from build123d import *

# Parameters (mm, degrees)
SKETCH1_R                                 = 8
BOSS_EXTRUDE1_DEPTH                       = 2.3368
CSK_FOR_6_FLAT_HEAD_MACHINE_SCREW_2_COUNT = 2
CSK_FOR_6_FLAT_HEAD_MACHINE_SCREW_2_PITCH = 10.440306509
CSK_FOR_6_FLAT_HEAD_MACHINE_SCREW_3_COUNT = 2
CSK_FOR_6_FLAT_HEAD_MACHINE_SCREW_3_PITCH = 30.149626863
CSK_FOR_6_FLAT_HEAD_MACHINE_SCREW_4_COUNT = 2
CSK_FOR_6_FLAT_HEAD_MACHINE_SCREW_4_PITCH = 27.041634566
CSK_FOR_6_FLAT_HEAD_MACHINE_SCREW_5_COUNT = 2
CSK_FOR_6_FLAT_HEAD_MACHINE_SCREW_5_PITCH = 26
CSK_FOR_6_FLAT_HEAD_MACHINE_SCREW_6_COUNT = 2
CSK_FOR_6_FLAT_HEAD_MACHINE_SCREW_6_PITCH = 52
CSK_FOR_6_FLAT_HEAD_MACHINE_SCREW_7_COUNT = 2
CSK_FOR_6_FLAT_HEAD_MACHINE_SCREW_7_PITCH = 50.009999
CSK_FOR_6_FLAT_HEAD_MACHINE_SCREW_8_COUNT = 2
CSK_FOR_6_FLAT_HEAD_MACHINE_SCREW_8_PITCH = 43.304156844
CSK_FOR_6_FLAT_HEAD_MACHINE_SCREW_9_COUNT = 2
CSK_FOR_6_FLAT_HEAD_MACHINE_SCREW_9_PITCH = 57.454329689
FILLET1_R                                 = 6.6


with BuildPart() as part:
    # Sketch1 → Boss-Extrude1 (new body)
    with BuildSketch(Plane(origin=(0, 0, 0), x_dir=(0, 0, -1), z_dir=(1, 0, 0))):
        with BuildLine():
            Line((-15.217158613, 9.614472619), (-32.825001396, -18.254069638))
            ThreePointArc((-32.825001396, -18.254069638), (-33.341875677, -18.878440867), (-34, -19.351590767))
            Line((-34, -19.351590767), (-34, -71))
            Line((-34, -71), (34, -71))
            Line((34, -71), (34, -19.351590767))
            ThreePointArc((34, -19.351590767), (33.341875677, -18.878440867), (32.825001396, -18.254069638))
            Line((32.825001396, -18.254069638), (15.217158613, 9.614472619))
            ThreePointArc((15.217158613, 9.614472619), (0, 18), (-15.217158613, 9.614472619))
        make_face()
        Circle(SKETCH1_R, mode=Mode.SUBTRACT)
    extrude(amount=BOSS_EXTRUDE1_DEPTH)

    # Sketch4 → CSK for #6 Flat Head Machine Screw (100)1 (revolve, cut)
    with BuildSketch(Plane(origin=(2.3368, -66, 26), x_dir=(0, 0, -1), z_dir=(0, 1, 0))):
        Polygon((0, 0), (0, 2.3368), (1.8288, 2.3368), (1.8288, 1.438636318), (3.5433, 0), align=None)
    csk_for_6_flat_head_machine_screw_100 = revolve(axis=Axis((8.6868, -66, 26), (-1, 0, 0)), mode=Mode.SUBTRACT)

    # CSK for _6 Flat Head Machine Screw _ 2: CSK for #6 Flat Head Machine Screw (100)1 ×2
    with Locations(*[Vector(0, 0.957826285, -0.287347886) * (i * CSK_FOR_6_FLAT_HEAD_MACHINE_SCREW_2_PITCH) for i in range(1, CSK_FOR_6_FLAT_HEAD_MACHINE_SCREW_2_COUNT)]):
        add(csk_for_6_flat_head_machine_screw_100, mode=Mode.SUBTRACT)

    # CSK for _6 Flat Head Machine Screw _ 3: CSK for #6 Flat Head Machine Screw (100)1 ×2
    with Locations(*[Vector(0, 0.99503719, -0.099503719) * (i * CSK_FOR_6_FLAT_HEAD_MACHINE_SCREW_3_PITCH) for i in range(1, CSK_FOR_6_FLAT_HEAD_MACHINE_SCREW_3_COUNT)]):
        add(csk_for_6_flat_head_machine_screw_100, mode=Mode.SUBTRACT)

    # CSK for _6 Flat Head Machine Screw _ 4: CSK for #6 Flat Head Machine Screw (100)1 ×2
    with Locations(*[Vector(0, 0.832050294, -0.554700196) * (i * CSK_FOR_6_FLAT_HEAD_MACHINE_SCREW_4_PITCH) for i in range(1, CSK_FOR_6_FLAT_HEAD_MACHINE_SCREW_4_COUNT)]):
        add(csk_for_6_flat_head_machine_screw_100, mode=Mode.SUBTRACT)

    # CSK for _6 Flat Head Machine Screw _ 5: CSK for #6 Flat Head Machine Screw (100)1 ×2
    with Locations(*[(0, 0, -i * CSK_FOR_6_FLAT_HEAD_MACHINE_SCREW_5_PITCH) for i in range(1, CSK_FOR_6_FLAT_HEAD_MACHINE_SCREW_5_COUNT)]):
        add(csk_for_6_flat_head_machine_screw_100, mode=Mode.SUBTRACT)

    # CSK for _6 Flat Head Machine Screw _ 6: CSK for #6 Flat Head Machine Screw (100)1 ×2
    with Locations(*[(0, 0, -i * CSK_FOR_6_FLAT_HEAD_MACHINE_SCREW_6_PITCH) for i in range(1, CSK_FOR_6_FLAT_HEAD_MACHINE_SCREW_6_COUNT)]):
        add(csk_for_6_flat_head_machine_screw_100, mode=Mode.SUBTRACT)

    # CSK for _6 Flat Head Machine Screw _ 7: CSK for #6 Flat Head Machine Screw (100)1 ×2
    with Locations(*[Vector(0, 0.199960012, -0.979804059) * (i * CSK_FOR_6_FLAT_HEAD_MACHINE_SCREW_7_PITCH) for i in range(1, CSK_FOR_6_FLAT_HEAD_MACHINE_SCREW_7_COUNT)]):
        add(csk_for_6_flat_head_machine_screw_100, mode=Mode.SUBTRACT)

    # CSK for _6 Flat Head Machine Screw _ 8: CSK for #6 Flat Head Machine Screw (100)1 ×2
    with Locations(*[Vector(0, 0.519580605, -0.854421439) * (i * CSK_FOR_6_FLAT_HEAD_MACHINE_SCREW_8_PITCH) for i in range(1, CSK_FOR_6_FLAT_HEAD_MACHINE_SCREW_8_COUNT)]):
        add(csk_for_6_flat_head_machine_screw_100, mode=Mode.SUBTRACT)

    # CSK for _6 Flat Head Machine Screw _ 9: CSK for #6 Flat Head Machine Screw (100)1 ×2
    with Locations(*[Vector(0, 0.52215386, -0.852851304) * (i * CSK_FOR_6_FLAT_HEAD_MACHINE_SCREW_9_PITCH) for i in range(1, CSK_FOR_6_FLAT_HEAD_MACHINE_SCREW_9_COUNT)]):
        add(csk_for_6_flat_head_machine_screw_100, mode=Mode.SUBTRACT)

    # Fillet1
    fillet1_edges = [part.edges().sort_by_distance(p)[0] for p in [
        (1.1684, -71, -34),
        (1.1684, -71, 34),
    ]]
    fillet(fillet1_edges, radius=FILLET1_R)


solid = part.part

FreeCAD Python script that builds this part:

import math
import FreeCAD as App
import Part
import Sketcher

V = App.Vector
Q = App.Units.Quantity


def edges_at(feature, points):
    """Names of the edges that pass closest to the given points."""
    edges = feature.Shape.Edges
    near = lambda p: min(range(len(edges)), key=lambda i: edges[i].distToShape(Part.Vertex(*p))[0])
    return sorted({f"Edge{near(p) + 1}" for p in points})

doc = App.newDocument("Part")
body = doc.addObject("PartDesign::Body", "Body")

# Sketch on YZ plane
sketch1 = body.newObject("Sketcher::SketchObject", "Sketch")
sketch1.AttachmentSupport = (doc.getObject("YZ_Plane"), [""])
sketch1.MapMode = "FlatFace"
sketch1.addGeometry([
    Part.LineSegment(V(9.6, 15.2, 0), V(-18.3, 32.8, 0)),  # 0
    Part.ArcOfCircle(Part.Circle(V(-16.6, 35.5, 0), V(0, 0, 1), 3.2), math.radians(-152), math.radians(-122)),  # 1
    Part.LineSegment(V(-19.4, 34, 0), V(-71, 34, 0)),  # 2
    Part.LineSegment(V(-71, 34, 0), V(-71, -34, 0)),  # 3
    Part.LineSegment(V(-71, -34, 0), V(-19.4, -34, 0)),  # 4
    Part.ArcOfCircle(Part.Circle(V(-16.6, -35.5, 0), V(0, 0, 1), 3.2), math.radians(122), math.radians(152)),  # 5
    Part.LineSegment(V(-18.3, -32.8, 0), V(9.6, -15.2, 0)),  # 6
    Part.ArcOfCircle(Part.Circle(V(0, 0, 0), V(0, 0, 1), 18), math.radians(-58), math.radians(58)),  # 7
    Part.Circle(V(0, 0, 0), V(0, 0, 1), 8),  # 8
], False)
sketch1.addConstraint([
    Sketcher.Constraint("Tangent", 0, 2, 1, 2),
    Sketcher.Constraint("Coincident", 1, 1, 2, 1),
    Sketcher.Constraint("Coincident", 2, 2, 3, 1),
    Sketcher.Constraint("Coincident", 3, 2, 4, 1),
    Sketcher.Constraint("Coincident", 4, 2, 5, 2),
    Sketcher.Constraint("Tangent", 5, 1, 6, 1),
    Sketcher.Constraint("Tangent", 6, 2, 7, 1),
    Sketcher.Constraint("Tangent", 7, 2, 0, 1),
    Sketcher.Constraint("Horizontal", 2),
    Sketcher.Constraint("Vertical", 3),
    Sketcher.Constraint("Horizontal", 4),
    Sketcher.Constraint("Coincident", 7, 3, -1, 1),
    Sketcher.Constraint("Coincident", 8, 3, -1, 1),
    Sketcher.Constraint("Equal", 1, 5),
    Sketcher.Constraint("Symmetric", 1, 3, 5, 3, -1),
    Sketcher.Constraint("Vertical", 1, 1, 4, 2),
    Sketcher.Constraint("Diameter", 8, 16.0),
    Sketcher.Constraint("Radius", 7, 18.0),
    Sketcher.Constraint("DistanceY", 3, 2, 3, 1, 68.0),
    Sketcher.Constraint("DistanceX", 2, 2, -1, 1, 71.0),
    Sketcher.Constraint("Radius", 1, 3.175),
    Sketcher.Constraint("DistanceY", -1, 1, 0, 2, 32.825001),
    Sketcher.Constraint("DistanceX", 2, 2, 2, 1, 51.648409),
])
pad1 = body.newObject("PartDesign::Pad", "Pad")
pad1.Profile = sketch1
pad1.Length = 2.3368

# Sketch on XZ plane
sketch2 = body.newObject("Sketcher::SketchObject", "Sketch001")
sketch2.AttachmentSupport = (doc.getObject("XZ_Plane"), [""])
sketch2.MapMode = "FlatFace"
sketch2.AttachmentOffset = App.Placement(V(0, 0, 66), App.Rotation())
sketch2.addGeometry([
    Part.LineSegment(V(0, 26, 0), V(2.3, 26, 0)),  # 0
    Part.LineSegment(V(2.3, 26, 0), V(2.3, 22.5, 0)),  # 1
    Part.LineSegment(V(2.3, 22.5, 0), V(0.9, 24.2, 0)),  # 2
    Part.LineSegment(V(0.9, 24.2, 0), V(0, 24.2, 0)),  # 3
    Part.LineSegment(V(0, 24.2, 0), V(0, 26, 0)),  # 4
], False)
sketch2.addGeometry(Part.LineSegment(V(2.3, 26, 0), V(0, 26, 0)), True)  # axis
sketch2.addConstraint([
    Sketcher.Constraint("Coincident", 0, 2, 1, 1),
    Sketcher.Constraint("Coincident", 1, 2, 2, 1),
    Sketcher.Constraint("Coincident", 2, 2, 3, 1),
    Sketcher.Constraint("Coincident", 3, 2, 4, 1),
    Sketcher.Constraint("Coincident", 4, 2, 0, 1),
    Sketcher.Constraint("Horizontal", 0),
    Sketcher.Constraint("Vertical", 1),
    Sketcher.Constraint("Horizontal", 3),
    Sketcher.Constraint("Vertical", 4),
    Sketcher.Constraint("Horizontal", 5),
    Sketcher.Constraint("Coincident", 5, 1, 0, 2),
    Sketcher.Constraint("PointOnObject", 3, 2, -2),
    Sketcher.Constraint("PointOnObject", 5, 2, -2),
    Sketcher.Constraint("Angle", 2, Q("130 deg")),
    Sketcher.Constraint("DistanceY", -1, 1, 0, 2, 26.0),
    Sketcher.Constraint("DistanceX", 0, 1, 0, 2, 2.3368),
    Sketcher.Constraint("DistanceY", 1, 2, 1, 1, 3.5433),
    Sketcher.Constraint("DistanceY", 4, 1, 4, 2, 1.8288),
])
groove = body.newObject("PartDesign::Groove", "Groove")
groove.Profile = sketch2
groove.ReferenceAxis = (sketch2, ["Axis0"])
groove.Angle = 360
doc.recompute()

datumline = body.newObject("PartDesign::Line", "DatumLine")
datumline.Placement = App.Placement(V(0, 0, 0), App.Rotation(V(0, 0, 1), V(0, 0.957826285, -0.287347886)))
linearpattern = body.newObject("PartDesign::LinearPattern", "LinearPattern")
linearpattern.Originals = [groove]
linearpattern.Direction = (datumline, [""])
linearpattern.Mode = "offset"
linearpattern.Offset = 10.440307
linearpattern.Occurrences = 2
body.Tip = linearpattern
doc.recompute()

datumline2 = body.newObject("PartDesign::Line", "DatumLine001")
datumline2.Placement = App.Placement(V(0, 0, 0), App.Rotation(V(0, 0, 1), V(0, 0.99503719, -0.099503719)))
linearpattern2 = body.newObject("PartDesign::LinearPattern", "LinearPattern001")
linearpattern2.Originals = [groove]
linearpattern2.Direction = (datumline2, [""])
linearpattern2.Mode = "offset"
linearpattern2.Offset = 30.149627
linearpattern2.Occurrences = 2
body.Tip = linearpattern2
doc.recompute()

datumline3 = body.newObject("PartDesign::Line", "DatumLine002")
datumline3.Placement = App.Placement(V(0, 0, 0), App.Rotation(V(0, 0, 1), V(0, 0.832050294, -0.554700196)))
linearpattern3 = body.newObject("PartDesign::LinearPattern", "LinearPattern002")
linearpattern3.Originals = [groove]
linearpattern3.Direction = (datumline3, [""])
linearpattern3.Mode = "offset"
linearpattern3.Offset = 27.041635
linearpattern3.Occurrences = 2
body.Tip = linearpattern3
doc.recompute()

linearpattern4 = body.newObject("PartDesign::LinearPattern", "LinearPattern003")
linearpattern4.Originals = [groove]
linearpattern4.Direction = (doc.getObject("Z_Axis"), [""])
linearpattern4.Mode = "offset"
linearpattern4.Offset = 26
linearpattern4.Occurrences = 2
linearpattern4.Reversed = True
body.Tip = linearpattern4
doc.recompute()

linearpattern5 = body.newObject("PartDesign::LinearPattern", "LinearPattern004")
linearpattern5.Originals = [groove]
linearpattern5.Direction = (doc.getObject("Z_Axis"), [""])
linearpattern5.Mode = "offset"
linearpattern5.Offset = 52
linearpattern5.Occurrences = 2
linearpattern5.Reversed = True
body.Tip = linearpattern5
doc.recompute()

datumline4 = body.newObject("PartDesign::Line", "DatumLine003")
datumline4.Placement = App.Placement(V(0, 0, 0), App.Rotation(V(0, 0, 1), V(0, 0.199960012, -0.979804059)))
linearpattern6 = body.newObject("PartDesign::LinearPattern", "LinearPattern005")
linearpattern6.Originals = [groove]
linearpattern6.Direction = (datumline4, [""])
linearpattern6.Mode = "offset"
linearpattern6.Offset = 50.009999
linearpattern6.Occurrences = 2
body.Tip = linearpattern6
doc.recompute()

datumline5 = body.newObject("PartDesign::Line", "DatumLine004")
datumline5.Placement = App.Placement(V(0, 0, 0), App.Rotation(V(0, 0, 1), V(0, 0.519580605, -0.854421439)))
linearpattern7 = body.newObject("PartDesign::LinearPattern", "LinearPattern006")
linearpattern7.Originals = [groove]
linearpattern7.Direction = (datumline5, [""])
linearpattern7.Mode = "offset"
linearpattern7.Offset = 43.304157
linearpattern7.Occurrences = 2
body.Tip = linearpattern7
doc.recompute()

datumline6 = body.newObject("PartDesign::Line", "DatumLine005")
datumline6.Placement = App.Placement(V(0, 0, 0), App.Rotation(V(0, 0, 1), V(0, 0.52215386, -0.852851304)))
linearpattern8 = body.newObject("PartDesign::LinearPattern", "LinearPattern007")
linearpattern8.Originals = [groove]
linearpattern8.Direction = (datumline6, [""])
linearpattern8.Mode = "offset"
linearpattern8.Offset = 57.45433
linearpattern8.Occurrences = 2
body.Tip = linearpattern8
doc.recompute()

fillet = body.newObject("PartDesign::Fillet", "Fillet")
fillet.Base = (linearpattern8, edges_at(linearpattern8, [(1.168, -71, -34), (1.168, -71, 34)]))
fillet.Radius = 6.6

doc.recompute()
